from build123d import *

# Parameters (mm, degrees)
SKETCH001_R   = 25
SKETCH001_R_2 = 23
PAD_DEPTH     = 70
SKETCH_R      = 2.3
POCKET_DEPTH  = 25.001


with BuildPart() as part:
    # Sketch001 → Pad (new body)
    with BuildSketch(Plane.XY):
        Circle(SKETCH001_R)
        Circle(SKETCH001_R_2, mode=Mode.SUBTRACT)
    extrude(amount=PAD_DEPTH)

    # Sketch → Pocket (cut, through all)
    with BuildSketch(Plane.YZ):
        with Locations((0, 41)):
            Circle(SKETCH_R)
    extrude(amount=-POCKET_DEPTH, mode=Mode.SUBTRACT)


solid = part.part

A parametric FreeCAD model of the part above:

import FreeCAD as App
import Part
import Sketcher

V = App.Vector

doc = App.newDocument("Part")
body = doc.addObject("PartDesign::Body", "Body")

# Sketch on XY plane
sketch1 = doc.addObject("Sketcher::SketchObject", "Sketch")
body.addObject(sketch1)
sketch1.AttachmentSupport = (doc.XY_Plane, [""])
sketch1.MapMode = "FlatFace"
sketch1.addGeometry([
    Part.Circle(V(0, 0, 0), V(0, 0, 1), 25),
    Part.Circle(V(0, 0, 0), V(0, 0, 1), 23),
], False)
sketch1.addConstraint([
    Sketcher.Constraint("Coincident", 0, 3, -1, 1),
    Sketcher.Constraint("Coincident", 1, 3, -1, 1),
    Sketcher.Constraint("Diameter", 0, 50.0),
    Sketcher.Constraint("Diameter", 1, 46.0),
])
pad1 = doc.addObject("PartDesign::Pad", "Pad")
body.addObject(pad1)
pad1.Profile = sketch1
pad1.Length = 70

# Sketch on YZ plane
sketch2 = doc.addObject("Sketcher::SketchObject", "Sketch001")
body.addObject(sketch2)
sketch2.AttachmentSupport = (doc.YZ_Plane, [""])
sketch2.MapMode = "FlatFace"
sketch2.addGeometry(Part.Circle(V(0, 41, 0), V(0, 0, 1), 2.3), False)
sketch2.addConstraint([
    Sketcher.Constraint("PointOnObject", 0, 3, -2),
    Sketcher.Constraint("Diameter", 0, 4.6),
    Sketcher.Constraint("DistanceY", -1, 1, 0, 3, 41.0),
])
pocket1 = doc.addObject("PartDesign::Pocket", "Pocket")
body.addObject(pocket1)
pocket1.Profile = sketch2
pocket1.Type = "ThroughAll"

doc.recompute()
